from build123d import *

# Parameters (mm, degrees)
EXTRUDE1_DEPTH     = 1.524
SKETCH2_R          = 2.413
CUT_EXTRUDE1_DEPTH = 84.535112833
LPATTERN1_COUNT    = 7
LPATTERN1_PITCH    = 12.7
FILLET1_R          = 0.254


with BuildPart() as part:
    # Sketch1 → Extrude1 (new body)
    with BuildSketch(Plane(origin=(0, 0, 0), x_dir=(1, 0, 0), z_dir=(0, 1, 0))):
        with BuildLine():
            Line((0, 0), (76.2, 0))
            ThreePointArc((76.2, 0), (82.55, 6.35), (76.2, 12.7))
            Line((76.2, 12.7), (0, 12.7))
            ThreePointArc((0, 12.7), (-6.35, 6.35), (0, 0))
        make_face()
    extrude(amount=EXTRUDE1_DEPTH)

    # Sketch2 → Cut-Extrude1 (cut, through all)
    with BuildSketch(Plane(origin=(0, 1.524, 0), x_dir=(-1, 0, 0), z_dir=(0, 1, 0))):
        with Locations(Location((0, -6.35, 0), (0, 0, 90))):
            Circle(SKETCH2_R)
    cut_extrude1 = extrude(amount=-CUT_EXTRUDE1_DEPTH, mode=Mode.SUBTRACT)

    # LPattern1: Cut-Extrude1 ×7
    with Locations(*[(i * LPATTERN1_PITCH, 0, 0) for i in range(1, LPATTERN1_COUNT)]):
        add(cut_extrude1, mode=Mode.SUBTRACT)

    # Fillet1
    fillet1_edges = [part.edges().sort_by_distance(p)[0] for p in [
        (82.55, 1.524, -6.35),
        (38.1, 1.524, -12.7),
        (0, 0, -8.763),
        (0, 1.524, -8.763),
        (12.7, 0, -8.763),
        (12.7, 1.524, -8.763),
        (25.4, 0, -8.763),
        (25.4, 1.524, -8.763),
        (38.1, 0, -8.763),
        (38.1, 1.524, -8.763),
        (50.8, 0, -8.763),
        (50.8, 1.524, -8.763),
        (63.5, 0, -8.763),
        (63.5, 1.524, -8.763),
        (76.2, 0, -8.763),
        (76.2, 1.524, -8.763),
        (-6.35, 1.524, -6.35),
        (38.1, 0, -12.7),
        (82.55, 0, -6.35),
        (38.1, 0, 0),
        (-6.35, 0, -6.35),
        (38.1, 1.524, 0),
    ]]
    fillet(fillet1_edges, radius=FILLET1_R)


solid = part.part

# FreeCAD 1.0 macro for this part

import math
import FreeCAD as App
import Part
import Sketcher
Q = App.Units.Quantity


def edges_at(feature, points):
    """Names of the edges that pass closest to the given points."""
    edges = feature.Shape.Edges
    near = lambda p: min(range(len(edges)), key=lambda i: edges[i].distToShape(Part.Vertex(*p))[0])
    return sorted({f"Edge{near(p) + 1}" for p in points})

doc = App.newDocument("Part")
body = doc.addObject("PartDesign::Body", "Body")

# Sketch on XZ plane
sketch1 = body.newObject("Sketcher::SketchObject", "Sketch")
sketch1.AttachmentSupport = (doc.getObject("XZ_Plane"), [""])
sketch1.MapMode = "FlatFace"
sketch1.addGeometry([
    Part.LineSegment(App.Vector(0, 0, 0), App.Vector(76, 0, 0)),
    Part.ArcOfCircle(Part.Circle(App.Vector(76, -6, 0), App.Vector(0, 0, 1), 6), math.radians(-90), math.radians(90)),
    Part.LineSegment(App.Vector(76, -13, 0), App.Vector(0, -13, 0)),
    Part.ArcOfCircle(Part.Circle(App.Vector(0, -6, 0), App.Vector(0, 0, 1), 6), math.radians(90), math.radians(270)),
], False)
sketch1.addConstraint([
    Sketcher.Constraint("Tangent", 0, 2, 1, 2),
    Sketcher.Constraint("Tangent", 1, 1, 2, 1),
    Sketcher.Constraint("Tangent", 2, 2, 3, 2),
    Sketcher.Constraint("Tangent", 3, 1, 0, 1),
    Sketcher.Constraint("Horizontal", 0),
    Sketcher.Constraint("Horizontal", 2),
    Sketcher.Constraint("Coincident", 3, 1, -1, 1),
    Sketcher.Constraint("DistanceX", 0, 1, 0, 2, Q("3 in")),
    Sketcher.Constraint("Radius", 1, Q("0.25 in")),
])
pad1 = body.newObject("PartDesign::Pad", "Pad")
pad1.Profile = sketch1
pad1.Length = Q("0.06 in")
pad1.Reversed = True

# Sketch on XZ plane
sketch2 = body.newObject("Sketcher::SketchObject", "Sketch001")
sketch2.AttachmentSupport = (doc.getObject("XZ_Plane"), [""])
sketch2.MapMode = "FlatFace"
sketch2.AttachmentOffset = App.Placement(App.Vector(0, 0, -0.06 * 25.4), App.Rotation())
sketch2.addGeometry(Part.Circle(App.Vector(0, -6.3, 0), App.Vector(0, 0, 1), 2.4), False)
sketch2.addConstraint([
    Sketcher.Constraint("PointOnObject", 0, 3, -2),
    Sketcher.Constraint("Diameter", 0, Q("0.19 in")),
    Sketcher.Constraint("DistanceY", 0, 3, -1, 1, Q("0.25 in")),
])
pocket1 = body.newObject("PartDesign::Pocket", "Pocket")
pocket1.Profile = sketch2
pocket1.Type = "ThroughAll"
pocket1.Reversed = True
doc.recompute()

linearpattern = body.newObject("PartDesign::LinearPattern", "LinearPattern")
linearpattern.Originals = [pocket1]
linearpattern.Direction = (doc.getObject("X_Axis"), [""])
linearpattern.Mode = "offset"
linearpattern.Offset = Q("0.5 in")
linearpattern.Occurrences = 7
body.Tip = linearpattern
doc.recompute()

fillet = body.newObject("PartDesign::Fillet", "Fillet")
fillet.Base = (linearpattern, edges_at(linearpattern, [
    (82.55, 1.524, -6.35),
    (38.1, 1.524, -12.7),
    (0, 0, -8.763),
    (0, 1.524, -8.763),
    (12.7, 0, -8.763),
    (12.7, 1.524, -8.763),
    (25.4, 0, -8.763),
    (25.4, 1.524, -8.763),
    (38.1, 0, -8.763),
    (38.1, 1.524, -8.763),
    (50.8, 0, -8.763),
    (50.8, 1.524, -8.763),
    (63.5, 0, -8.763),
    (63.5, 1.524, -8.763),
    (76.2, 0, -8.763),
    (76.2, 1.524, -8.763),
    (-6.35, 1.524, -6.35),
    (38.1, 0, -12.7),
    (82.55, 0, -6.35),
    (38.1, 0, 0),
    (-6.35, 0, -6.35),
    (38.1, 1.524, 0),
]))
fillet.Radius = Q("0.01 in")

doc.recompute()
